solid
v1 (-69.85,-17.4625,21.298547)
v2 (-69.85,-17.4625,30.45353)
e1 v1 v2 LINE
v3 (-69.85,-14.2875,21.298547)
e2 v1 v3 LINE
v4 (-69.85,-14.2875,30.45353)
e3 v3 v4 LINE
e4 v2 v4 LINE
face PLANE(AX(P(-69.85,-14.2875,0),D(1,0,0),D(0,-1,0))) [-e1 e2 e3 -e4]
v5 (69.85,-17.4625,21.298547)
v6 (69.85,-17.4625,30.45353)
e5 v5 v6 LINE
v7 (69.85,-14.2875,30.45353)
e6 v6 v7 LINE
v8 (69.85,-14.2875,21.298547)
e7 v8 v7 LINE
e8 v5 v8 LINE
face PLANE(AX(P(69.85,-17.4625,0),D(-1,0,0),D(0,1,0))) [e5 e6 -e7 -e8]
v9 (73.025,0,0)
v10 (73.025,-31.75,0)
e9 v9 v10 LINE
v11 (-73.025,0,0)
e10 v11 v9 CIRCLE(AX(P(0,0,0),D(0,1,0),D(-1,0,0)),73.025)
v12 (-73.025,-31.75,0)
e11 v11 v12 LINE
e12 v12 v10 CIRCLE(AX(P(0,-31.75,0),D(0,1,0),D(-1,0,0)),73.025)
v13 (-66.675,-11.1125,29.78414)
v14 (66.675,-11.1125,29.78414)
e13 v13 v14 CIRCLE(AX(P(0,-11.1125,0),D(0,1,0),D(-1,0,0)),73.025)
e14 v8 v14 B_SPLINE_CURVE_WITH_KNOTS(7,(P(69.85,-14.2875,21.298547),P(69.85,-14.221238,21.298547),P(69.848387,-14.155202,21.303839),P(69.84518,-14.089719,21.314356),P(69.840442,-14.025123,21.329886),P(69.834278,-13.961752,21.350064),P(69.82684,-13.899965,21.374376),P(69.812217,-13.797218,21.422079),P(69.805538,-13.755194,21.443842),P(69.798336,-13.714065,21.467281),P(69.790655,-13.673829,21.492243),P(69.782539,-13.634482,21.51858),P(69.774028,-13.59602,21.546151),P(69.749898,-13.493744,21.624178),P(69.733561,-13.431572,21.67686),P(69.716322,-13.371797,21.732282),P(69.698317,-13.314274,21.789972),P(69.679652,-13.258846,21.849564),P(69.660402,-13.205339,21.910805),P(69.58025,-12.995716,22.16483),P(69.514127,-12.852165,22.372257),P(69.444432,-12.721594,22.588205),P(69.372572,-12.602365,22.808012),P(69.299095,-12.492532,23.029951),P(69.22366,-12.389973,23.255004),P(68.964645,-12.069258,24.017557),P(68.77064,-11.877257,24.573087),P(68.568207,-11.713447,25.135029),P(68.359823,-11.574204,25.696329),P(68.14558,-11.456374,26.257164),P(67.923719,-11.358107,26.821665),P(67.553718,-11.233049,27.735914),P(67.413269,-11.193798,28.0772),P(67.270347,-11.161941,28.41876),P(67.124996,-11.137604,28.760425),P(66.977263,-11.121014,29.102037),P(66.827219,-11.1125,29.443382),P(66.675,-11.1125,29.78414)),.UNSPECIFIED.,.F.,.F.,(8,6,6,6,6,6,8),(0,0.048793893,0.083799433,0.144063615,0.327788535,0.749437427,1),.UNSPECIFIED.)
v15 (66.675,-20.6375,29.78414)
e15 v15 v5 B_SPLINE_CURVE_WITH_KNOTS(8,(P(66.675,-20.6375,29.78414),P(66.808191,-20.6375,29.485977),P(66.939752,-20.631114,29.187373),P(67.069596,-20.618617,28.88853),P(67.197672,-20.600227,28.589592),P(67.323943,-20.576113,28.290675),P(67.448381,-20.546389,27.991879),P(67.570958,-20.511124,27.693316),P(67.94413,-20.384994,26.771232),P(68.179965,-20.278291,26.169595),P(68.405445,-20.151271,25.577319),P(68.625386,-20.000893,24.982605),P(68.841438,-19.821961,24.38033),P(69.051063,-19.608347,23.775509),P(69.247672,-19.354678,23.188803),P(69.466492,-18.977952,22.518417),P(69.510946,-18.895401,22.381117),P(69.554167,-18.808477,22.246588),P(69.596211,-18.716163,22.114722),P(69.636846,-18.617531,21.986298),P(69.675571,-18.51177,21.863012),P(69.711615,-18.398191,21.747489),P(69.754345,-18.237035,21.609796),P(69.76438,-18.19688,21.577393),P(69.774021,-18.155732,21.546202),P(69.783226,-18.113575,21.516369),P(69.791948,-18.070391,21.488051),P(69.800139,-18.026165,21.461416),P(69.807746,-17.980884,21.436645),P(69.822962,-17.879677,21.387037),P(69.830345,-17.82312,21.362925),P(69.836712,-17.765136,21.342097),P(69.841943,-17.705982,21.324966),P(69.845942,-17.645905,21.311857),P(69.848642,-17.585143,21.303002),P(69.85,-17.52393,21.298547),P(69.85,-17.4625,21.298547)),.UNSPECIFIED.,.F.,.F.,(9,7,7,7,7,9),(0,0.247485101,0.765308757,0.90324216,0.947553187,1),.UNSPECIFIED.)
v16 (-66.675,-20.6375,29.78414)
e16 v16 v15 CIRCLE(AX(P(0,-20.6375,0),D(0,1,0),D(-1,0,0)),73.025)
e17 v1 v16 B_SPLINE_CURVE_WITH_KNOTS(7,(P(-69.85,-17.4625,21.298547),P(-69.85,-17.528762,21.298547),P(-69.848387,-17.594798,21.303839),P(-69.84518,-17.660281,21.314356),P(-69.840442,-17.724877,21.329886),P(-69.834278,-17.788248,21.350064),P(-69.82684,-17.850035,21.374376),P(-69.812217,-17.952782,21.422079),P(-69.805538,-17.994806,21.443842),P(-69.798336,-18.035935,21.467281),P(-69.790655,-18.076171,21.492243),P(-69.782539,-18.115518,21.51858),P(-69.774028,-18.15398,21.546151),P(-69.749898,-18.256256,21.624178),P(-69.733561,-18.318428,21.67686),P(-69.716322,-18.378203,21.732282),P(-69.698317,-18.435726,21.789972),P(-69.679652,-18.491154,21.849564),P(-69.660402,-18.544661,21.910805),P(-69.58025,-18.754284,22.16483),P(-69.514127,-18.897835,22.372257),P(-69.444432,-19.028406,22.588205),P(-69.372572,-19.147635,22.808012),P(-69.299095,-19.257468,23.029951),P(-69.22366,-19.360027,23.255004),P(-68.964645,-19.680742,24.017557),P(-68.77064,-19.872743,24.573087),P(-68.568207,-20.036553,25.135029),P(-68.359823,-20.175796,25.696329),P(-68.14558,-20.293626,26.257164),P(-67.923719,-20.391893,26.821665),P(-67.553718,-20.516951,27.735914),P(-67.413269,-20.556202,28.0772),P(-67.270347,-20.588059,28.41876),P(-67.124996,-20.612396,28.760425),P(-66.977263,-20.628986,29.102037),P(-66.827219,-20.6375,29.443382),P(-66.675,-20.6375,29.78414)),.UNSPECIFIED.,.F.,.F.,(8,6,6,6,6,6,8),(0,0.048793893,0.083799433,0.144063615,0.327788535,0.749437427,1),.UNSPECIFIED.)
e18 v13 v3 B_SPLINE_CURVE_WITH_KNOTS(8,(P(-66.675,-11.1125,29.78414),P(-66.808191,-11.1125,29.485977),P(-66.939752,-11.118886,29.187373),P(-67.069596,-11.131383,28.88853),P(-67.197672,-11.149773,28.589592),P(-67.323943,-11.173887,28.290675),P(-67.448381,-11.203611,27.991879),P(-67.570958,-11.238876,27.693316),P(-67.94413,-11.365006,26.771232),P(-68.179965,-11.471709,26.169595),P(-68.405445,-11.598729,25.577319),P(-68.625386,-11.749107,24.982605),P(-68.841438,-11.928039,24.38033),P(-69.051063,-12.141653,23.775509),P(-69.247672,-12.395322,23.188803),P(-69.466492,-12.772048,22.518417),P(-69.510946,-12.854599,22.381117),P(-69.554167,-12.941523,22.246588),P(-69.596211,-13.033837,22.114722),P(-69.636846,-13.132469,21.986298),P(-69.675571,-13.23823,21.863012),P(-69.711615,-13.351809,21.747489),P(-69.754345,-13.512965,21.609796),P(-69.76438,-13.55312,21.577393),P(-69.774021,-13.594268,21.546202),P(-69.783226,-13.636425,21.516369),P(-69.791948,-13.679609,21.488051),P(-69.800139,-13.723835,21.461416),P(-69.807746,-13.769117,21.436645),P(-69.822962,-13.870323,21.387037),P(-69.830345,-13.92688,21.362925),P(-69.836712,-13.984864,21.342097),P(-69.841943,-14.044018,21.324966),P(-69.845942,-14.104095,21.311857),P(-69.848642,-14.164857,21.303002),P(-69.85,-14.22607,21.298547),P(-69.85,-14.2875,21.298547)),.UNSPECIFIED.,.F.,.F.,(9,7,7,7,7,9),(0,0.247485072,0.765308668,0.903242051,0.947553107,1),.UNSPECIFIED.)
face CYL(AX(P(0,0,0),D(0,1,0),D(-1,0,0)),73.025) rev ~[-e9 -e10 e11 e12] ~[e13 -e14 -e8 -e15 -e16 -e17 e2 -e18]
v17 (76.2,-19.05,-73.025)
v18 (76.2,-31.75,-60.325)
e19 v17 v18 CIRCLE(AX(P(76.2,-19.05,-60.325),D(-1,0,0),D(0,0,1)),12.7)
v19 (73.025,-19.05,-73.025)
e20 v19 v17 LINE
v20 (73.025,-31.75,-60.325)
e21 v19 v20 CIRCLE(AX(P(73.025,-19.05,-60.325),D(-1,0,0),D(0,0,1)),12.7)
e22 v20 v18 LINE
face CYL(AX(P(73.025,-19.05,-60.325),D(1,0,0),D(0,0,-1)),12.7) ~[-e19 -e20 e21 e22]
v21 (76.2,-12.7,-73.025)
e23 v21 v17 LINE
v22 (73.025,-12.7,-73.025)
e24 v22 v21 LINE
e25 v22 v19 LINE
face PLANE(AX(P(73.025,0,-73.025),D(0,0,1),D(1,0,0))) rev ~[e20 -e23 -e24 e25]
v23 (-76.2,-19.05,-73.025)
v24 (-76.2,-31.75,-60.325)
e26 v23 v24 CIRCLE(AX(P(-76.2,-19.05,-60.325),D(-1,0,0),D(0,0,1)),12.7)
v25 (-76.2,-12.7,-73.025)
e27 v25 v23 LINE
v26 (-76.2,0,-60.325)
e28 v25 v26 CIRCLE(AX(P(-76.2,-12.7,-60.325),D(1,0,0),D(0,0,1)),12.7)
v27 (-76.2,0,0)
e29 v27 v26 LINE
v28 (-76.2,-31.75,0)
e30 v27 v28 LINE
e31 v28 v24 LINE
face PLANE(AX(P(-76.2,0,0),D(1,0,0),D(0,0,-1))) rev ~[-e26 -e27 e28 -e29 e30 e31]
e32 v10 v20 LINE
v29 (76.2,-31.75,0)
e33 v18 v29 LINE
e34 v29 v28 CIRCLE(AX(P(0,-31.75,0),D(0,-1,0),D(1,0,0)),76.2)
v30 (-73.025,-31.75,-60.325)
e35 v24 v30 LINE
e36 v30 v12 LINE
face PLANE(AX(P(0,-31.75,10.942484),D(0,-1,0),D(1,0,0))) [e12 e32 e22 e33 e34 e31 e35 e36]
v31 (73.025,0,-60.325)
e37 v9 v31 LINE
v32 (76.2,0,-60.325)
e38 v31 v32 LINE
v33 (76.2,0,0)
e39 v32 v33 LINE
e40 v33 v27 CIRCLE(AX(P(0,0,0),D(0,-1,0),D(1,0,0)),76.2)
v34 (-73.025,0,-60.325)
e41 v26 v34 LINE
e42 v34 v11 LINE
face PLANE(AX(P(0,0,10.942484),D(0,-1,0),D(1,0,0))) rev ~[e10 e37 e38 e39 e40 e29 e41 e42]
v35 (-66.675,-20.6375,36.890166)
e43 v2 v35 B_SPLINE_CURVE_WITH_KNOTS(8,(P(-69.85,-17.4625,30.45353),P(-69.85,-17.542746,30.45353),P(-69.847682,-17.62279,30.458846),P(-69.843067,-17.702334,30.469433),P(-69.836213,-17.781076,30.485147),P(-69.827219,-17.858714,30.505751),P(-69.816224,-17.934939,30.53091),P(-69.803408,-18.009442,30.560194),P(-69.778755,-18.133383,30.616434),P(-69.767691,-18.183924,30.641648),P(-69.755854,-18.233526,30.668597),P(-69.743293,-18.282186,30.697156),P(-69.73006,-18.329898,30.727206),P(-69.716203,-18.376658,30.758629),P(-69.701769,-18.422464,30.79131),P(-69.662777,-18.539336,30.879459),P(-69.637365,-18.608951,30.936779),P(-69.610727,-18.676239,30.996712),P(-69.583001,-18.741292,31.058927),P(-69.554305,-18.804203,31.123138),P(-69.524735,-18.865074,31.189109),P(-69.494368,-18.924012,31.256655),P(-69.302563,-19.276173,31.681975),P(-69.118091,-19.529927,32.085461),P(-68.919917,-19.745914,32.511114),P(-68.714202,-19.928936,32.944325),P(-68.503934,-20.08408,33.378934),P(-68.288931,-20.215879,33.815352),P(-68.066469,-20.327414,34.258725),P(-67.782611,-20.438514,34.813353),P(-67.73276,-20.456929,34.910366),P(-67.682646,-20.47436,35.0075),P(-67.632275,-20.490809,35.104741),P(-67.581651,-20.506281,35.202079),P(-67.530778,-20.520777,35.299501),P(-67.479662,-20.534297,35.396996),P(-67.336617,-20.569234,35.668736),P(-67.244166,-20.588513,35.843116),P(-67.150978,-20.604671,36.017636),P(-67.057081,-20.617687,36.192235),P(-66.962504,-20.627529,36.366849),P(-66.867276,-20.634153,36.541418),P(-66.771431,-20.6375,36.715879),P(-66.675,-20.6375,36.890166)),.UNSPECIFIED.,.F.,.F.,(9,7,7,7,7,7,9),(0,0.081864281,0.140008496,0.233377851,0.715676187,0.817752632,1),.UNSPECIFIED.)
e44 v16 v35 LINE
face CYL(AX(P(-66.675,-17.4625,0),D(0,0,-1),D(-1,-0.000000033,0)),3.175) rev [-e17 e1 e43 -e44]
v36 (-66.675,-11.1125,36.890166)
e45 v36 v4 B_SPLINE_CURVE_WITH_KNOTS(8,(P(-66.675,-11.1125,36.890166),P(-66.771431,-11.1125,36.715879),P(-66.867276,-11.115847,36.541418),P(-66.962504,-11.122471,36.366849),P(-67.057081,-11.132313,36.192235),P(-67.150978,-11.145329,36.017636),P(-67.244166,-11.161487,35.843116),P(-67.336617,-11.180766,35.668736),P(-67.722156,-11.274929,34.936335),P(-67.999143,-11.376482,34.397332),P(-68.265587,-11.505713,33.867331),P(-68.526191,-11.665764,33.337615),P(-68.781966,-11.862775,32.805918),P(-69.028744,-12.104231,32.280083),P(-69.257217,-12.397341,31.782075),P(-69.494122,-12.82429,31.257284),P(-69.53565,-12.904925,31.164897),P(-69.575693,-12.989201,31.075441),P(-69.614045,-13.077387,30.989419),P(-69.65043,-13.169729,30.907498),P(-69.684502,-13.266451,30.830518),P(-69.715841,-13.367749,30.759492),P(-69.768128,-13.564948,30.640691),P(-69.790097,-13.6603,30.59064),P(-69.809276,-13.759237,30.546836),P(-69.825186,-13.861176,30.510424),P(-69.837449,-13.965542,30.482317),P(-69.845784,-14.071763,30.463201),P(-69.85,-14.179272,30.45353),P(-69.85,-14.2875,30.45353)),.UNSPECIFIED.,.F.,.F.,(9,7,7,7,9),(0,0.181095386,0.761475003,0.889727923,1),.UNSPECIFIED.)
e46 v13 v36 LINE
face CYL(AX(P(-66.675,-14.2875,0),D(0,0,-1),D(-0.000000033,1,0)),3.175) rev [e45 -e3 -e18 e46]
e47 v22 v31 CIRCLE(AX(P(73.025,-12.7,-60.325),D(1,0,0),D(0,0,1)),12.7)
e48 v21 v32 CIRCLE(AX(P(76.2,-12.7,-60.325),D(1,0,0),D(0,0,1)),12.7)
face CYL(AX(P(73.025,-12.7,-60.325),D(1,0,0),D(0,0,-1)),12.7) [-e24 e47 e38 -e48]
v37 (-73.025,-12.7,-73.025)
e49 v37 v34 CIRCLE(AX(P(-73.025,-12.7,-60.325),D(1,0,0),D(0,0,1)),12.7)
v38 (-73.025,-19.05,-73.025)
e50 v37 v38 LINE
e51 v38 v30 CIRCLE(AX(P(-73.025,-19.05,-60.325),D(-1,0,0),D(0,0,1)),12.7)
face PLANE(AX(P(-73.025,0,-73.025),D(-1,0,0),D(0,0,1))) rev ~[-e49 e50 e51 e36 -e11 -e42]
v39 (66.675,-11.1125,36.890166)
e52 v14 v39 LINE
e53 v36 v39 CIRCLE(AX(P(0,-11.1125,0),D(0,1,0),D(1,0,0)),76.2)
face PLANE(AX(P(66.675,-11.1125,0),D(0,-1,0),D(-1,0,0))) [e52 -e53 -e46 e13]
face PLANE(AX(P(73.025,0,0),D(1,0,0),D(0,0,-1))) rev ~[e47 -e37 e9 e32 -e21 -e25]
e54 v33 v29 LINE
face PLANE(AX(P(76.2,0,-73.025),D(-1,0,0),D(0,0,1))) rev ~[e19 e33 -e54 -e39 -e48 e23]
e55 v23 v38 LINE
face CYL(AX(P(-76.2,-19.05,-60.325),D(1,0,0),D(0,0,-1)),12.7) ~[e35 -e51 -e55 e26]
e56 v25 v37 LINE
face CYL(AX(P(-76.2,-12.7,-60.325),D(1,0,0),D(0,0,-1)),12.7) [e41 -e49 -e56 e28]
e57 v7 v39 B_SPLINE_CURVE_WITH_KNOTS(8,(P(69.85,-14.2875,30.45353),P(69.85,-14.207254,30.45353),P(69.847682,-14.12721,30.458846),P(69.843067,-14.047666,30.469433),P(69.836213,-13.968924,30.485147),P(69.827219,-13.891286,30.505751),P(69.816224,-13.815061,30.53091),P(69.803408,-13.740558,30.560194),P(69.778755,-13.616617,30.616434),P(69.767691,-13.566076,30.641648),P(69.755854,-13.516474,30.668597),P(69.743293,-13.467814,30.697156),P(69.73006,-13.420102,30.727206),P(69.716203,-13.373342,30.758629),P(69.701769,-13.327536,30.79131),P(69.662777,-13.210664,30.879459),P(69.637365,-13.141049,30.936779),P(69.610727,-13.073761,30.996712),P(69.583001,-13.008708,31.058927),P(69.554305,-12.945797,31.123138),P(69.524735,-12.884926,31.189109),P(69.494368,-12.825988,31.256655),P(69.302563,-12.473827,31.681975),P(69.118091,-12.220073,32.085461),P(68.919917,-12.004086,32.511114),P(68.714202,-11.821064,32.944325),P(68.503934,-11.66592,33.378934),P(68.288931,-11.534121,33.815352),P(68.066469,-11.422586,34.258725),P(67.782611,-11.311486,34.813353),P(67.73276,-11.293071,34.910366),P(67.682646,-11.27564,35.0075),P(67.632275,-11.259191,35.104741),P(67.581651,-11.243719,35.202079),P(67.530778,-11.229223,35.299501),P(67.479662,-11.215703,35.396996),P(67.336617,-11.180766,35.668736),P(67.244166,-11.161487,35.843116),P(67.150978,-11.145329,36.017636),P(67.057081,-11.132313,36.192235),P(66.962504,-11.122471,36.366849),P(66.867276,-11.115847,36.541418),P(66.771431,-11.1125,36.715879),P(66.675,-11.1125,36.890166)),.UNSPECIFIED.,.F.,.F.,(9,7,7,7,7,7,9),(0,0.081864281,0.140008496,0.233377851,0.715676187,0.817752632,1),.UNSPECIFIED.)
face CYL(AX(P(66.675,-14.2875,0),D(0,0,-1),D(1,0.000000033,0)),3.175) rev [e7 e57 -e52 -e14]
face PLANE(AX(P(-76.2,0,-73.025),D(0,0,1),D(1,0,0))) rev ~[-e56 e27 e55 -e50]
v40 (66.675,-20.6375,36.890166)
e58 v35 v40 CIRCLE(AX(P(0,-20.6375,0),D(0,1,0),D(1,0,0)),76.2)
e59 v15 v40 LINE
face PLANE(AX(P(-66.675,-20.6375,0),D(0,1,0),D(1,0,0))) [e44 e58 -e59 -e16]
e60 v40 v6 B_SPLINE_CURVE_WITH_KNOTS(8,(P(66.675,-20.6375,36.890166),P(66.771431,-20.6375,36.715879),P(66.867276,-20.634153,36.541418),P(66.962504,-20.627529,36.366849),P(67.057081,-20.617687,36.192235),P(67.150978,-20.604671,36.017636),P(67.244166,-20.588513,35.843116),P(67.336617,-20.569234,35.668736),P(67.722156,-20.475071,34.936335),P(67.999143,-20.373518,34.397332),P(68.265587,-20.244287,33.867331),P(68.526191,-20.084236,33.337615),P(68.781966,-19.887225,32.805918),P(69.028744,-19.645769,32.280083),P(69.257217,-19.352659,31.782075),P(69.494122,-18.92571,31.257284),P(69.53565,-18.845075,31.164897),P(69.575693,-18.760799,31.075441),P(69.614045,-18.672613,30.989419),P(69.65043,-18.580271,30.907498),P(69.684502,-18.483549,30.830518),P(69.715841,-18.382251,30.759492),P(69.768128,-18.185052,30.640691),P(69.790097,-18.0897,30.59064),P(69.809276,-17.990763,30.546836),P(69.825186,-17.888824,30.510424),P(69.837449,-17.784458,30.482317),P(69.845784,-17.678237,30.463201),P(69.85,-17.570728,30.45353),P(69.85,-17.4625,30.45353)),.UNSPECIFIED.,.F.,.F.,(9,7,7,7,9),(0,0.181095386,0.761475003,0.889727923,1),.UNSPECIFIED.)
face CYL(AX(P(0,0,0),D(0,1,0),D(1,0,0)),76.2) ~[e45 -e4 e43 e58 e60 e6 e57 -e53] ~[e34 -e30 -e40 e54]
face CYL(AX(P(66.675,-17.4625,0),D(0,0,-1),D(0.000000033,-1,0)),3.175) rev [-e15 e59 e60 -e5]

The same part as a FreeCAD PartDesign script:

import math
import FreeCAD as App
import Part
import Sketcher
Q = App.Units.Quantity


def edges_at(feature, points):
    """Names of the edges that pass closest to the given points."""
    edges = feature.Shape.Edges
    near = lambda p: min(range(len(edges)), key=lambda i: edges[i].distToShape(Part.Vertex(*p))[0])
    return sorted({f"Edge{near(p) + 1}" for p in points})

doc = App.newDocument("Part")
body = doc.addObject("PartDesign::Body", "Body")

sketch1 = doc.addObject("Sketcher::SketchObject", "Sketch")
body.addObject(sketch1)
sketch1.AttachmentSupport = (doc.XZ_Plane, [""])
sketch1.MapMode = "FlatFace"
sketch1.addGeometry(Part.ArcOfCircle(Part.Circle(App.Vector(0, 0, 0), App.Vector(0, 0, 1), 73.025), math.radians(0), math.radians(180)), False)
sketch1.addGeometry(Part.LineSegment(App.Vector(73.025, 0, 0), App.Vector(73.025, -73.025, 0)), False)
sketch1.addGeometry(Part.LineSegment(App.Vector(73.025, -73.025, 0), App.Vector(76.2, -73.025, 0)), False)
sketch1.addGeometry(Part.LineSegment(App.Vector(76.2, -73.025, 0), App.Vector(76.2, 0, 0)), False)
sketch1.addGeometry(Part.ArcOfCircle(Part.Circle(App.Vector(0, 0, 0), App.Vector(0, 0, 1), 76.2), math.radians(0), math.radians(180)), False)
sketch1.addGeometry(Part.LineSegment(App.Vector(-76.2, 0, 0), App.Vector(-76.2, -73.025, 0)), False)
sketch1.addGeometry(Part.LineSegment(App.Vector(-76.2, -73.025, 0), App.Vector(-73.025, -73.025, 0)), False)
sketch1.addGeometry(Part.LineSegment(App.Vector(-73.025, -73.025, 0), App.Vector(-73.025, 0, 0)), False)
sketch1.addConstraint(Sketcher.Constraint("Tangent", 0, 1, 1, 1))
sketch1.addConstraint(Sketcher.Constraint("Coincident", 1, 2, 2, 1))
sketch1.addConstraint(Sketcher.Constraint("Coincident", 2, 2, 3, 1))
sketch1.addConstraint(Sketcher.Constraint("Tangent", 3, 2, 4, 1))
sketch1.addConstraint(Sketcher.Constraint("Tangent", 4, 2, 5, 1))
sketch1.addConstraint(Sketcher.Constraint("Coincident", 5, 2, 6, 1))
sketch1.addConstraint(Sketcher.Constraint("Coincident", 6, 2, 7, 1))
sketch1.addConstraint(Sketcher.Constraint("Tangent", 7, 2, 0, 2))
sketch1.addConstraint(Sketcher.Constraint("Vertical", 1))
sketch1.addConstraint(Sketcher.Constraint("Horizontal", 2))
sketch1.addConstraint(Sketcher.Constraint("Vertical", 3))
sketch1.addConstraint(Sketcher.Constraint("Vertical", 5))
sketch1.addConstraint(Sketcher.Constraint("Horizontal", 6))
sketch1.addConstraint(Sketcher.Constraint("Vertical", 7))
sketch1.addConstraint(Sketcher.Constraint("Coincident", 0, 3, -1, 1))
sketch1.addConstraint(Sketcher.Constraint("Coincident", 4, 3, -1, 1))
sketch1.addConstraint(Sketcher.Constraint("Horizontal", 2, 2, 5, 2))
sketch1.addConstraint(Sketcher.Constraint("Radius", 4, Q("3 in")))
sketch1.addConstraint(Sketcher.Constraint("Radius", 0, Q("2.875 in")))
sketch1.addConstraint(Sketcher.Constraint("DistanceY", 1, 2, 1, 1, Q("2.875 in")))
pad1 = doc.addObject("PartDesign::Pad", "Pad")
body.addObject(pad1)
pad1.Profile = sketch1
pad1.Length = Q("1.25 in")
doc.recompute()

fillet = doc.addObject("PartDesign::Fillet", "Fillet")
body.addObject(fillet)
fillet.Base = (pad1, edges_at(pad1, [
    (-74.612, -31.75, -73.025),
    (-74.612, 0, -73.025),
    (74.612, -31.75, -73.025),
    (74.612, 0, -73.025),
]))
fillet.Radius = Q("0.5 in")

sketch2 = doc.addObject("Sketcher::SketchObject", "Sketch001")
body.addObject(sketch2)
sketch2.AttachmentSupport = (doc.XY_Plane, [""])
sketch2.MapMode = "FlatFace"
sketch2.addGeometry(Part.ArcOfCircle(Part.Circle(App.Vector(-66.675, -17.4625, 0), App.Vector(0, 0, 1), 3.175), math.radians(-179.999998), math.radians(-90.000002)), False)
sketch2.addGeometry(Part.LineSegment(App.Vector(-66.675, -20.6375, 0), App.Vector(66.675, -20.6375, 0)), False)
sketch2.addGeometry(Part.ArcOfCircle(Part.Circle(App.Vector(66.675, -17.4625, 0), App.Vector(0, 0, 1), 3.175), math.radians(-89.999998), math.radians(-0.000002)), False)
sketch2.addGeometry(Part.LineSegment(App.Vector(69.85, -17.4625, 0), App.Vector(69.85, -14.2875, 0)), False)
sketch2.addGeometry(Part.ArcOfCircle(Part.Circle(App.Vector(66.675, -14.2875, 0), App.Vector(0, 0, 1), 3.175), math.radians(0.000002), math.radians(89.999998)), False)
sketch2.addGeometry(Part.LineSegment(App.Vector(66.675, -11.1125, 0), App.Vector(-66.675, -11.1125, 0)), False)
sketch2.addGeometry(Part.ArcOfCircle(Part.Circle(App.Vector(-66.675, -14.2875, 0), App.Vector(0, 0, 1), 3.175), math.radians(90.000002), math.radians(179.999998)), False)
sketch2.addGeometry(Part.LineSegment(App.Vector(-69.85, -14.2875, 0), App.Vector(-69.85, -17.4625, 0)), False)
sketch2.addConstraint(Sketcher.Constraint("Tangent", 0, 2, 1, 1))
sketch2.addConstraint(Sketcher.Constraint("Tangent", 1, 2, 2, 1))
sketch2.addConstraint(Sketcher.Constraint("Tangent", 2, 2, 3, 1))
sketch2.addConstraint(Sketcher.Constraint("Tangent", 3, 2, 4, 1))
sketch2.addConstraint(Sketcher.Constraint("Tangent", 4, 2, 5, 1))
sketch2.addConstraint(Sketcher.Constraint("Tangent", 5, 2, 6, 1))
sketch2.addConstraint(Sketcher.Constraint("Tangent", 6, 2, 7, 1))
sketch2.addConstraint(Sketcher.Constraint("Tangent", 7, 2, 0, 1))
sketch2.addConstraint(Sketcher.Constraint("Horizontal", 1))
sketch2.addConstraint(Sketcher.Constraint("Vertical", 3))
sketch2.addConstraint(Sketcher.Constraint("Horizontal", 5))
sketch2.addConstraint(Sketcher.Constraint("Vertical", 7))
sketch2.addConstraint(Sketcher.Constraint("Equal", 0, 2))
sketch2.addConstraint(Sketcher.Constraint("Equal", 2, 4))
sketch2.addConstraint(Sketcher.Constraint("Equal", 4, 6))
sketch2.addConstraint(Sketcher.Constraint("Radius", 0, Q("0.125 in")))
sketch2.addConstraint(Sketcher.Constraint("DistanceX", 1, 1, 1, 2, Q("5.25 in")))
sketch2.addConstraint(Sketcher.Constraint("DistanceY", 3, 1, 3, 2, Q("0.125 in")))
sketch2.addConstraint(Sketcher.Constraint("DistanceX", -1, 1, 2, 2, Q("2.75 in")))
sketch2.addConstraint(Sketcher.Constraint("DistanceY", 0, 3, -1, 1, Q("0.6875 in")))
pocket1 = doc.addObject("PartDesign::Pocket", "Pocket")
body.addObject(pocket1)
pocket1.Profile = sketch2
pocket1.Type = "ThroughAll"
pocket1.Reversed = True

doc.recompute()
